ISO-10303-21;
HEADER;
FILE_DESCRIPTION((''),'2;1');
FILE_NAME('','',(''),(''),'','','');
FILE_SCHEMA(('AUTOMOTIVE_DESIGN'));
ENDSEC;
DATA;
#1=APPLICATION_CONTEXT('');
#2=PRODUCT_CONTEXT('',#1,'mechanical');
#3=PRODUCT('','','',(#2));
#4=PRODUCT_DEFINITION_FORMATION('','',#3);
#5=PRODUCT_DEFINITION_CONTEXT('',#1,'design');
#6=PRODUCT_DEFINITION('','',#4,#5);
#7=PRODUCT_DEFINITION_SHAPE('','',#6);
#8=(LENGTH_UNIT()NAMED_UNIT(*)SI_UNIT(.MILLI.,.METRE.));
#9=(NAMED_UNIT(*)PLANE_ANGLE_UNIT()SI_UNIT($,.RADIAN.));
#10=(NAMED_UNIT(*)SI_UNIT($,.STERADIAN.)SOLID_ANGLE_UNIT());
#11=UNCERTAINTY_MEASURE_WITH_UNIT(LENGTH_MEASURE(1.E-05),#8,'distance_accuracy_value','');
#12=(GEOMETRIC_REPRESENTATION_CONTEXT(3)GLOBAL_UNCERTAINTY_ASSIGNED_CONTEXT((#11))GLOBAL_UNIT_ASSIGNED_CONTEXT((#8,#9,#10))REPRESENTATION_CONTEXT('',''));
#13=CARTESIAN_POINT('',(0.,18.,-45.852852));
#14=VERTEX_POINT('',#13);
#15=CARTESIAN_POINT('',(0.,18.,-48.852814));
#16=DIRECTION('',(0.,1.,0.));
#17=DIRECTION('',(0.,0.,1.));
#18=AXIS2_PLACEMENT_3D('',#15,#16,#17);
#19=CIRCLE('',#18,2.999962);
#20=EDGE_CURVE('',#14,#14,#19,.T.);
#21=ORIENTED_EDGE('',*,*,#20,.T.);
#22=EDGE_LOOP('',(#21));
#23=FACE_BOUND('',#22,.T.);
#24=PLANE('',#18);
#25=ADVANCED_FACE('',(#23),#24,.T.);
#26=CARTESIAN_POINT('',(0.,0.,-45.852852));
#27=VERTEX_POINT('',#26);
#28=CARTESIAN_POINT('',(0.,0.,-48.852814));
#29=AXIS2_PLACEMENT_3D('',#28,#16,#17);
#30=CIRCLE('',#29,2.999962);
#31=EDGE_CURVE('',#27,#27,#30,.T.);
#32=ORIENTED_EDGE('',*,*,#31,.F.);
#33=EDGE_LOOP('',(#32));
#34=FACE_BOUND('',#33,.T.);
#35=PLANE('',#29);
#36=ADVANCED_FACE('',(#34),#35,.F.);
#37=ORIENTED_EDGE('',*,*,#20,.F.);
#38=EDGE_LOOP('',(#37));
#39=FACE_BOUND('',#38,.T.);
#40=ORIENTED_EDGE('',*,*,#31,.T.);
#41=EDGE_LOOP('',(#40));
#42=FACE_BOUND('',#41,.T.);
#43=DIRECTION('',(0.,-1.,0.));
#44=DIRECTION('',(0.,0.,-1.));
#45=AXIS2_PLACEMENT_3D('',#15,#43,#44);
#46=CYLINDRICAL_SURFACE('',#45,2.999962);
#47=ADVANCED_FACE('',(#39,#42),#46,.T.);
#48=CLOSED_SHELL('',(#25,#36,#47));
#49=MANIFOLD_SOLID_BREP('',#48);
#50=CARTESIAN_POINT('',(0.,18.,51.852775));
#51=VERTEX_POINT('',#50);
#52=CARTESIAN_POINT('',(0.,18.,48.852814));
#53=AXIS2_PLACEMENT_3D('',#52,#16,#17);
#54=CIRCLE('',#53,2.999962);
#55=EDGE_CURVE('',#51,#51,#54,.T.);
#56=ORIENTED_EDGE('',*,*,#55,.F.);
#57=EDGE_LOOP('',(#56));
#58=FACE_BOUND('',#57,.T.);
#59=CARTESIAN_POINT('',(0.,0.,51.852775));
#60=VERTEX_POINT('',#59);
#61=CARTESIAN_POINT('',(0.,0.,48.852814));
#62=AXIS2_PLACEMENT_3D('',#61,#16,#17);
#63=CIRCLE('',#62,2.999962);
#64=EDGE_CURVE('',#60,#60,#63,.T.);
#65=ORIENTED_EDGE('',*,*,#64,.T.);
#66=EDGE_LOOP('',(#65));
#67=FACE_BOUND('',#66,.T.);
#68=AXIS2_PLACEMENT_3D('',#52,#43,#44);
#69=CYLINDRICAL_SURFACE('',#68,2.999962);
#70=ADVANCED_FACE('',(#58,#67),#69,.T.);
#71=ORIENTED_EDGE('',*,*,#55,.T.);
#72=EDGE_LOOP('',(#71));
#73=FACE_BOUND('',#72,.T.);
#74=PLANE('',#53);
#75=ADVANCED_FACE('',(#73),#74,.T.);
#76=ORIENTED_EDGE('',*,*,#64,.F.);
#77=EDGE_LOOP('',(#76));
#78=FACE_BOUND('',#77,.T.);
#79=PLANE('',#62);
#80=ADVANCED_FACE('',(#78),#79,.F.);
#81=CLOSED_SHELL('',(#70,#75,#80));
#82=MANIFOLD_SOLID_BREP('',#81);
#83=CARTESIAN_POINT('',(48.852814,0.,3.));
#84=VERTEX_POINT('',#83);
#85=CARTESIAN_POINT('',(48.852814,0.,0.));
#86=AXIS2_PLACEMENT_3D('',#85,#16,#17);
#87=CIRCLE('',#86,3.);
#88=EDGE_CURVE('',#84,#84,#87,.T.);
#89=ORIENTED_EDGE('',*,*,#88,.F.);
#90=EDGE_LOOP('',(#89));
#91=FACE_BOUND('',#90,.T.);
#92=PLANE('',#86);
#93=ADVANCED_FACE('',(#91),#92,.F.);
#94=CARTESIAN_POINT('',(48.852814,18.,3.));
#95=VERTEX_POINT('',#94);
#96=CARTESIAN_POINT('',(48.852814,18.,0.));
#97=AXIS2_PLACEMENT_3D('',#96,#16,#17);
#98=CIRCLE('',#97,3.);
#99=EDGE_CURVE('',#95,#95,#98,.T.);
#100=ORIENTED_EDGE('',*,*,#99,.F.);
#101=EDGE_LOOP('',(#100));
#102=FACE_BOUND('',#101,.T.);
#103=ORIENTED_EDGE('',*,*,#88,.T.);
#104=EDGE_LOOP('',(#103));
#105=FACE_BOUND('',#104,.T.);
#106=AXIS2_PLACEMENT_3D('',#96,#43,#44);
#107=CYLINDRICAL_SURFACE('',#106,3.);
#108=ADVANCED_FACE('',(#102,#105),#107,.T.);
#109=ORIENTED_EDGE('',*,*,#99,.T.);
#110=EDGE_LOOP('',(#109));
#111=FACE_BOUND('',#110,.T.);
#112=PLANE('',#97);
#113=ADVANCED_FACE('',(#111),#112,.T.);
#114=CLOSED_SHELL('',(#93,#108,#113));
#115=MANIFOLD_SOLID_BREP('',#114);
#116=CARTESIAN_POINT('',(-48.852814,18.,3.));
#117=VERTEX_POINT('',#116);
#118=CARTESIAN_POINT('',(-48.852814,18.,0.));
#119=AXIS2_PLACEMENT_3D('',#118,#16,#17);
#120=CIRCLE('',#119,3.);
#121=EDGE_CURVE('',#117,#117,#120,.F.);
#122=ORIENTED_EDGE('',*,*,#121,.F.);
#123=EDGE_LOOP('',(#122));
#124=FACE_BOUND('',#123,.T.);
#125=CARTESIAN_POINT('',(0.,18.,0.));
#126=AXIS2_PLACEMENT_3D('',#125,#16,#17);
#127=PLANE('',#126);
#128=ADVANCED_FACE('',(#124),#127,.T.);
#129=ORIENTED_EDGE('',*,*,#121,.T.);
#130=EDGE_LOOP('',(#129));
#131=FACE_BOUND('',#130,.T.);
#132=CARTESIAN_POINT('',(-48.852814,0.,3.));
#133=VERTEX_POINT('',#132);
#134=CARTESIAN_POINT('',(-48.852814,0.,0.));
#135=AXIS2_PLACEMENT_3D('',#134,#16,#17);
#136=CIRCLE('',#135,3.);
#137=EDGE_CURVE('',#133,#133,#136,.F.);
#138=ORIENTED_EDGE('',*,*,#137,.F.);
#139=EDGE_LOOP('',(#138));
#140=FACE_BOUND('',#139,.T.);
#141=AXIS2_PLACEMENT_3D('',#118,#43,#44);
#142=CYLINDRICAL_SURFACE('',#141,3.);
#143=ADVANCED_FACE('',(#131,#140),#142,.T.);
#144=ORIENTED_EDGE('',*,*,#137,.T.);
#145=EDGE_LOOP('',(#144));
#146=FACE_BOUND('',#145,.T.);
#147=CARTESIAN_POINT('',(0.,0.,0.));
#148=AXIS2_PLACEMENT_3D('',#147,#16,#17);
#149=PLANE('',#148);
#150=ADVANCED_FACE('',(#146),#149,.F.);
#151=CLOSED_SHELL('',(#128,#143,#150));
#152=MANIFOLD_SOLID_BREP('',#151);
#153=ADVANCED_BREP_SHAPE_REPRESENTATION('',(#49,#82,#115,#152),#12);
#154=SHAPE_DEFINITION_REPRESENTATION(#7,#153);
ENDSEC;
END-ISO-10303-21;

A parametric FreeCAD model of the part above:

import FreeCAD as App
import Part
import Sketcher

V = App.Vector
Q = App.Units.Quantity

doc = App.newDocument("Part")
params = doc.addObject("Spreadsheet::Sheet", "Params")
for row, (alias, value) in enumerate([
    ("sketch1_diameter", "6 mm"),
    ("pad1_length", "18 mm"),
    ("pad2_length", "18 mm"),
    ("pad3_length", "18 mm"),
    ("sketch4_diameter", "6 mm"),
    ("pad4_length", "18 mm"),
], start=1):
    params.set(f"A{row}", alias)
    params.set(f"B{row}", "=" + value)
    params.setAlias(f"B{row}", alias)

body = doc.addObject("PartDesign::Body", "Body")

sketch1 = body.newObject("Sketcher::SketchObject", "Sketch")
sketch1.AttachmentSupport = (doc.getObject("XZ_Plane"), [""])
sketch1.MapMode = "FlatFace"
sketch1.addGeometry(Part.Circle(V(-48.9, 0, 0), V(0, 0, 1), 3), False)
sketch1.addConstraint(Sketcher.Constraint("PointOnObject", 0, 3, -1))
sketch1.addConstraint(Sketcher.Constraint("Diameter", 0, Q("6 mm")))
sketch1.addConstraint(Sketcher.Constraint("DistanceX", 0, 3, -1, 1, Q("48.852814 mm")))
sketch1.setExpression("Constraints[1]", "Params.sketch1_diameter")
pad1 = body.newObject("PartDesign::Pad", "Pad")
pad1.Profile = sketch1
pad1.setExpression("Length", "Params.pad1_length")
pad1.Reversed = True
body2 = doc.addObject("PartDesign::Body", "Body001")

sketch2 = body2.newObject("Sketcher::SketchObject", "Sketch001")
sketch2.AttachmentSupport = (doc.getObject("XZ_Plane001"), [""])
sketch2.MapMode = "FlatFace"
sketch2.addGeometry(Part.Circle(V(0, -48.9, 0), V(0, 0, 1), 3), False)
sketch2.addConstraint(Sketcher.Constraint("PointOnObject", 0, 3, -2))
sketch2.addConstraint(Sketcher.Constraint("Diameter", 0, Q("5.999923 mm")))
sketch2.addConstraint(Sketcher.Constraint("DistanceY", 0, 3, -1, 1, Q("48.852814 mm")))
pad2 = body2.newObject("PartDesign::Pad", "Pad001")
pad2.Profile = sketch2
pad2.setExpression("Length", "Params.pad2_length")
pad2.Reversed = True
body3 = doc.addObject("PartDesign::Body", "Body002")

sketch3 = body3.newObject("Sketcher::SketchObject", "Sketch002")
sketch3.AttachmentSupport = (doc.getObject("XZ_Plane002"), [""])
sketch3.MapMode = "FlatFace"
sketch3.addGeometry(Part.Circle(V(0, 48.9, 0), V(0, 0, 1), 3), False)
sketch3.addConstraint(Sketcher.Constraint("PointOnObject", 0, 3, -2))
sketch3.addConstraint(Sketcher.Constraint("Diameter", 0, Q("5.999923 mm")))
sketch3.addConstraint(Sketcher.Constraint("DistanceY", -1, 1, 0, 3, Q("48.852814 mm")))
pad3 = body3.newObject("PartDesign::Pad", "Pad002")
pad3.Profile = sketch3
pad3.setExpression("Length", "Params.pad3_length")
pad3.Reversed = True
body4 = doc.addObject("PartDesign::Body", "Body003")

sketch4 = body4.newObject("Sketcher::SketchObject", "Sketch003")
sketch4.AttachmentSupport = (doc.getObject("XZ_Plane003"), [""])
sketch4.MapMode = "FlatFace"
sketch4.addGeometry(Part.Circle(V(48.9, 0, 0), V(0, 0, 1), 3), False)
sketch4.addConstraint(Sketcher.Constraint("PointOnObject", 0, 3, -1))
sketch4.addConstraint(Sketcher.Constraint("Diameter", 0, Q("6 mm")))
sketch4.addConstraint(Sketcher.Constraint("DistanceX", -1, 1, 0, 3, Q("48.852814 mm")))
sketch4.setExpression("Constraints[1]", "Params.sketch4_diameter")
pad4 = body4.newObject("PartDesign::Pad", "Pad003")
pad4.Profile = sketch4
pad4.setExpression("Length", "Params.pad4_length")
pad4.Reversed = True

doc.recompute()
